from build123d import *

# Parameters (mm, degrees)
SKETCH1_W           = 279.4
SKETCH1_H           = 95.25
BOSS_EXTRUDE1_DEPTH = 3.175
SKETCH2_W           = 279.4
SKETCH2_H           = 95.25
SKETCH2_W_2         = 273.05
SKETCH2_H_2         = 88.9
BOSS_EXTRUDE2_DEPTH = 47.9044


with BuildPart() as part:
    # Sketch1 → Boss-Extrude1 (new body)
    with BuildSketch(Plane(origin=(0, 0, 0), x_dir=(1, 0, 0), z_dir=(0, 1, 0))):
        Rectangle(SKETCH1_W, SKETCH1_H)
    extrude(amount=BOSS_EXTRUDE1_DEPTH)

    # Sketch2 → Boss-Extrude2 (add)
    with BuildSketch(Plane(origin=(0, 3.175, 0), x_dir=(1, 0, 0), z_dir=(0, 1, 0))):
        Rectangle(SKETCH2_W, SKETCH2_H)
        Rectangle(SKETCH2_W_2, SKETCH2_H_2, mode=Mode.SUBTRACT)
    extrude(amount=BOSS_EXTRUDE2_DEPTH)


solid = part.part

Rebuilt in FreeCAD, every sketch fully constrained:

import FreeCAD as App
import Part
import Sketcher
Q = App.Units.Quantity


def add_polygon(sketch, points):
    """Adds a closed chain of lines whose ends are joined by coincident constraints."""
    first, n = sketch.GeometryCount, len(points)
    for a, b in zip(points, points[1:] + points[:1]):
        sketch.addGeometry(Part.LineSegment(App.Vector(*a, 0), App.Vector(*b, 0)), False)
    for i in range(n):
        sketch.addConstraint(Sketcher.Constraint("Coincident", first + i, 2, first + (i + 1) % n, 1))

doc = App.newDocument("Part")
body = doc.addObject("PartDesign::Body", "Body")

# Sketch on XZ plane
sketch1 = doc.addObject("Sketcher::SketchObject", "Sketch")
body.addObject(sketch1)
sketch1.AttachmentSupport = (doc.XZ_Plane, [""])
sketch1.MapMode = "FlatFace"
add_polygon(sketch1, [(-139.7, -47.625), (-139.7, 47.625), (139.7, 47.625), (139.7, -47.625)])  # lines 0-3
sketch1.addConstraint(Sketcher.Constraint("Vertical", 0))
sketch1.addConstraint(Sketcher.Constraint("Horizontal", 1))
sketch1.addConstraint(Sketcher.Constraint("Vertical", 2))
sketch1.addConstraint(Sketcher.Constraint("Horizontal", 3))
sketch1.addConstraint(Sketcher.Constraint("Symmetric", 0, 2, 2, 2, -1, 1))
sketch1.addConstraint(Sketcher.Constraint("DistanceX", 1, 1, 1, 2, Q("11 in")))
sketch1.addConstraint(Sketcher.Constraint("DistanceY", 0, 1, 0, 2, Q("3.75 in")))
pad1 = doc.addObject("PartDesign::Pad", "Pad")
body.addObject(pad1)
pad1.Profile = sketch1
pad1.Length = Q("0.125 in")
pad1.Reversed = True

# Sketch on XZ plane
sketch2 = doc.addObject("Sketcher::SketchObject", "Sketch001")
body.addObject(sketch2)
sketch2.AttachmentSupport = (doc.XZ_Plane, [""])
sketch2.MapMode = "FlatFace"
sketch2.AttachmentOffset = App.Placement(App.Vector(0, 0, -0.125 * 25.4), App.Rotation())
add_polygon(sketch2, [(-139.7, -47.625), (-139.7, 47.625), (139.7, 47.625), (139.7, -47.625)])  # lines 0-3
add_polygon(sketch2, [(136.525, 44.45), (-136.525, 44.45), (-136.525, -44.45), (136.525, -44.45)])  # lines 4-7
sketch2.addConstraint(Sketcher.Constraint("Vertical", 0))
sketch2.addConstraint(Sketcher.Constraint("Horizontal", 1))
sketch2.addConstraint(Sketcher.Constraint("Vertical", 2))
sketch2.addConstraint(Sketcher.Constraint("Horizontal", 3))
sketch2.addConstraint(Sketcher.Constraint("Horizontal", 4))
sketch2.addConstraint(Sketcher.Constraint("Vertical", 5))
sketch2.addConstraint(Sketcher.Constraint("Horizontal", 6))
sketch2.addConstraint(Sketcher.Constraint("Vertical", 7))
sketch2.addConstraint(Sketcher.Constraint("Symmetric", 0, 2, 2, 2, -1, 1))
sketch2.addConstraint(Sketcher.Constraint("Symmetric", 4, 2, 6, 2, -1, 1))
sketch2.addConstraint(Sketcher.Constraint("DistanceX", 1, 1, 1, 2, Q("11 in")))
sketch2.addConstraint(Sketcher.Constraint("DistanceY", 5, 2, 5, 1, Q("3.5 in")))
sketch2.addConstraint(Sketcher.Constraint("DistanceX", 4, 2, 4, 1, Q("10.75 in")))
sketch2.addConstraint(Sketcher.Constraint("DistanceY", 0, 1, 0, 2, Q("3.75 in")))
pad2 = doc.addObject("PartDesign::Pad", "Pad001")
body.addObject(pad2)
pad2.Profile = sketch2
pad2.Length = Q("1.886 in")
pad2.Reversed = True

doc.recompute()
